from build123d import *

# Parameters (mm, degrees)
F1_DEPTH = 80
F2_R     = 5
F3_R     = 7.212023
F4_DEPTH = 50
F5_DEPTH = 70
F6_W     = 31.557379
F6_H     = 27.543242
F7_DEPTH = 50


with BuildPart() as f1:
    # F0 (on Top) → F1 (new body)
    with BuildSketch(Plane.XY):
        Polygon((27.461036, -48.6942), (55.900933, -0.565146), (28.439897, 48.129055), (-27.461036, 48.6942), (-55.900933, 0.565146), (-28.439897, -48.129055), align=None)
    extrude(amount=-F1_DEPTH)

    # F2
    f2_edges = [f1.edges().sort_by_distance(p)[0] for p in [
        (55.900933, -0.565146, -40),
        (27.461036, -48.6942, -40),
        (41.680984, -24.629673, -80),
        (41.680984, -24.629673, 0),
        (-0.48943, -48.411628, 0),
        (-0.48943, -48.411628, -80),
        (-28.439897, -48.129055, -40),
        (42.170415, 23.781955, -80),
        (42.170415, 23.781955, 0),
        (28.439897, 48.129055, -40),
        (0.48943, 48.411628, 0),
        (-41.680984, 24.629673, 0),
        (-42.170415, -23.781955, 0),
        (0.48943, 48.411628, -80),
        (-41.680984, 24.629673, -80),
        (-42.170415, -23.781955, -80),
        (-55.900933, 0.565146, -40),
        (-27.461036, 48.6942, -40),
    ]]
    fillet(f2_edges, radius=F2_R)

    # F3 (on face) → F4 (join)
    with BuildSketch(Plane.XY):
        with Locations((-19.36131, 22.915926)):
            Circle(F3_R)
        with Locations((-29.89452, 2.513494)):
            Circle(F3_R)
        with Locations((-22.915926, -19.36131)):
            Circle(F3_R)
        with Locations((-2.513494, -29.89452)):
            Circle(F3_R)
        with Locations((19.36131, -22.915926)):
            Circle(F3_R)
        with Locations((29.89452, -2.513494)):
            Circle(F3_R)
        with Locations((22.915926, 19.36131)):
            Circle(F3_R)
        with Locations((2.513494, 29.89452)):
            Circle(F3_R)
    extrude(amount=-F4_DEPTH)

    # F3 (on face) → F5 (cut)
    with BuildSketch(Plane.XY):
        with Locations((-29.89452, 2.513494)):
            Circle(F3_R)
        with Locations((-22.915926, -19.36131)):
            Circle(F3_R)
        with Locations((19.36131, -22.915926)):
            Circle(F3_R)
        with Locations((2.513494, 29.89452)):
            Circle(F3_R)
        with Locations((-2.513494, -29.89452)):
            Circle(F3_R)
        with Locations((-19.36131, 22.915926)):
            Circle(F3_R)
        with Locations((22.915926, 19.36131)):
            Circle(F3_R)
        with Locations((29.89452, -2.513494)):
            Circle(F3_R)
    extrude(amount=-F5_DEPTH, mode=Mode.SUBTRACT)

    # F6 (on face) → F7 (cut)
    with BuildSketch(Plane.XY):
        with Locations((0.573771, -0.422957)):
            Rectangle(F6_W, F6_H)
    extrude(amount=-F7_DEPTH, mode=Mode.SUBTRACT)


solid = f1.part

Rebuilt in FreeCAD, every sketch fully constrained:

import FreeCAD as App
import Part
import Sketcher
from FreeCAD import Vector

doc = App.newDocument("Part")
body = doc.addObject("PartDesign::Body", "Body")

sketch1 = body.newObject("Sketcher::SketchObject", "Sketch")
sketch1.AttachmentSupport = (doc.getObject("XY_Plane"), [""])
sketch1.MapMode = "FlatFace"
sketch1.addGeometry([
    Part.LineSegment(Vector(27, -49, 0), Vector(56, -1, 0)),
    Part.LineSegment(Vector(56, -1, 0), Vector(28, 48, 0)),
    Part.LineSegment(Vector(28, 48, 0), Vector(-27, 49, 0)),
    Part.LineSegment(Vector(-27, 49, 0), Vector(-56, 1, 0)),
    Part.LineSegment(Vector(-56, 1, 0), Vector(-28, -48, 0)),
    Part.LineSegment(Vector(-28, -48, 0), Vector(27, -49, 0)),
], False)
sketch1.addConstraint([
    Sketcher.Constraint("Coincident", 0, 2, 1, 1),
    Sketcher.Constraint("Coincident", 1, 2, 2, 1),
    Sketcher.Constraint("Coincident", 2, 2, 3, 1),
    Sketcher.Constraint("Coincident", 3, 2, 4, 1),
    Sketcher.Constraint("Coincident", 4, 2, 5, 1),
    Sketcher.Constraint("Coincident", 5, 2, 0, 1),
    Sketcher.Constraint("Symmetric", 0, 2, 3, 2, -1, 1),
    Sketcher.Constraint("Symmetric", 1, 2, 4, 2, -1, 1),
    Sketcher.Constraint("Symmetric", 2, 2, 5, 2, -1, 1),
    Sketcher.Constraint("Equal", 0, 1),
    Sketcher.Constraint("Equal", 1, 2),
    Sketcher.Constraint("DistanceY", -1, 1, 2, 2, 48.6942),
    Sketcher.Constraint("DistanceY", 0, 2, 1, 2, 48.694201),
    Sketcher.Constraint("Distance", 0, 55.903789),
    Sketcher.Constraint("DistanceX", 3, 2, 1, 2, 84.34083),
])
pad1 = body.newObject("PartDesign::Pad", "Pad")
pad1.Profile = sketch1
pad1.Length = 80
pad1.Reversed = True
doc.recompute()

fillet = body.newObject("PartDesign::Fillet", "Fillet")
fillet.Base = (pad1, ["Edge1"])
fillet.UseAllEdges = True
fillet.Radius = 5

sketch2 = body.newObject("Sketcher::SketchObject", "Sketch001")
sketch2.AttachmentSupport = (doc.getObject("XY_Plane"), [""])
sketch2.MapMode = "FlatFace"
sketch2.addGeometry([
    Part.Circle(Vector(-19, 23, 0), Vector(0, 0, 1), 7),
    Part.Circle(Vector(-30, 3, 0), Vector(0, 0, 1), 7),
    Part.Circle(Vector(-23, -19, 0), Vector(0, 0, 1), 7),
    Part.Circle(Vector(-3, -30, 0), Vector(0, 0, 1), 7),
    Part.Circle(Vector(19, -23, 0), Vector(0, 0, 1), 7),
    Part.Circle(Vector(30, -3, 0), Vector(0, 0, 1), 7),
    Part.Circle(Vector(23, 19, 0), Vector(0, 0, 1), 7),
    Part.Circle(Vector(3, 30, 0), Vector(0, 0, 1), 7),
], False)
sketch2.addConstraint([
    Sketcher.Constraint("Equal", 0, 1),
    Sketcher.Constraint("Equal", 1, 2),
    Sketcher.Constraint("Equal", 2, 3),
    Sketcher.Constraint("Equal", 3, 4),
    Sketcher.Constraint("Equal", 4, 5),
    Sketcher.Constraint("Equal", 5, 6),
    Sketcher.Constraint("Equal", 6, 7),
    Sketcher.Constraint("Symmetric", 0, 3, 4, 3, -1, 1),
    Sketcher.Constraint("Symmetric", 1, 3, 5, 3, -1, 1),
    Sketcher.Constraint("Symmetric", 2, 3, 6, 3, -1, 1),
    Sketcher.Constraint("Symmetric", 3, 3, 7, 3, -1, 1),
    Sketcher.Constraint("Diameter", 0, 14.424046),
    Sketcher.Constraint("DistanceX", 0, 3, -1, 1, 19.36131),
    Sketcher.Constraint("DistanceX", 1, 3, -1, 1, 29.89452),
    Sketcher.Constraint("DistanceY", 2, 3, -1, 1, 19.36131),
    Sketcher.Constraint("DistanceY", 3, 3, -1, 1, 29.89452),
    Sketcher.Constraint("DistanceY", 1, 3, 0, 3, 20.402432),
    Sketcher.Constraint("DistanceX", 2, 3, 3, 3, 20.402432),
    Sketcher.Constraint("DistanceY", 4, 3, 1, 3, 25.42942),
    Sketcher.Constraint("DistanceX", 3, 3, 6, 3, 25.42942),
])
pad2 = body.newObject("PartDesign::Pad", "Pad001")
pad2.Profile = sketch2
pad2.Length = 50
pad2.Reversed = True

sketch3 = body.newObject("Sketcher::SketchObject", "Sketch002")
sketch3.AttachmentSupport = (doc.getObject("XY_Plane"), [""])
sketch3.MapMode = "FlatFace"
sketch3.addGeometry([
    Part.Circle(Vector(-30, 3, 0), Vector(0, 0, 1), 7),
    Part.Circle(Vector(-23, -19, 0), Vector(0, 0, 1), 7),
    Part.Circle(Vector(19, -23, 0), Vector(0, 0, 1), 7),
    Part.Circle(Vector(3, 30, 0), Vector(0, 0, 1), 7),
    Part.Circle(Vector(-3, -30, 0), Vector(0, 0, 1), 7),
    Part.Circle(Vector(-19, 23, 0), Vector(0, 0, 1), 7),
    Part.Circle(Vector(23, 19, 0), Vector(0, 0, 1), 7),
    Part.Circle(Vector(30, -3, 0), Vector(0, 0, 1), 7),
], False)
sketch3.addConstraint([
    Sketcher.Constraint("Equal", 0, 1),
    Sketcher.Constraint("Equal", 1, 2),
    Sketcher.Constraint("Equal", 2, 3),
    Sketcher.Constraint("Equal", 3, 4),
    Sketcher.Constraint("Equal", 4, 5),
    Sketcher.Constraint("Equal", 5, 6),
    Sketcher.Constraint("Equal", 6, 7),
    Sketcher.Constraint("Symmetric", 3, 3, 4, 3, -1, 1),
    Sketcher.Constraint("Symmetric", 2, 3, 5, 3, -1, 1),
    Sketcher.Constraint("Symmetric", 1, 3, 6, 3, -1, 1),
    Sketcher.Constraint("Symmetric", 0, 3, 7, 3, -1, 1),
    Sketcher.Constraint("Diameter", 0, 14.424046),
    Sketcher.Constraint("DistanceX", 0, 3, -1, 1, 29.89452),
    Sketcher.Constraint("DistanceY", 1, 3, -1, 1, 19.36131),
    Sketcher.Constraint("DistanceX", -1, 1, 2, 3, 19.36131),
    Sketcher.Constraint("DistanceY", -1, 1, 3, 3, 29.89452),
    Sketcher.Constraint("DistanceY", 2, 3, 0, 3, 25.42942),
    Sketcher.Constraint("DistanceX", 1, 3, 3, 3, 25.42942),
    Sketcher.Constraint("DistanceX", 1, 3, 4, 3, 20.402432),
    Sketcher.Constraint("DistanceY", 0, 3, 5, 3, 20.402432),
])
pocket1 = body.newObject("PartDesign::Pocket", "Pocket")
pocket1.Profile = sketch3
pocket1.Length = 70

sketch4 = body.newObject("Sketcher::SketchObject", "Sketch003")
sketch4.AttachmentSupport = (doc.getObject("XY_Plane"), [""])
sketch4.MapMode = "FlatFace"
sketch4.addGeometry([
    Part.LineSegment(Vector(-15, 13, 0), Vector(-15, -14, 0)),
    Part.LineSegment(Vector(-15, -14, 0), Vector(16, -14, 0)),
    Part.LineSegment(Vector(16, -14, 0), Vector(16, 13, 0)),
    Part.LineSegment(Vector(16, 13, 0), Vector(-15, 13, 0)),
], False)
sketch4.addConstraint([
    Sketcher.Constraint("Coincident", 0, 2, 1, 1),
    Sketcher.Constraint("Coincident", 1, 2, 2, 1),
    Sketcher.Constraint("Coincident", 2, 2, 3, 1),
    Sketcher.Constraint("Coincident", 3, 2, 0, 1),
    Sketcher.Constraint("Vertical", 0),
    Sketcher.Constraint("Horizontal", 1),
    Sketcher.Constraint("Vertical", 2),
    Sketcher.Constraint("Horizontal", 3),
    Sketcher.Constraint("DistanceX", 1, 1, 1, 2, 31.557379),
    Sketcher.Constraint("DistanceY", 0, 2, 0, 1, 27.543242),
    Sketcher.Constraint("DistanceX", 0, 2, -1, 1, 15.204918),
    Sketcher.Constraint("DistanceY", 0, 2, -1, 1, 14.194578),
])
pocket2 = body.newObject("PartDesign::Pocket", "Pocket001")
pocket2.Profile = sketch4
pocket2.Length = 50

doc.recompute()
